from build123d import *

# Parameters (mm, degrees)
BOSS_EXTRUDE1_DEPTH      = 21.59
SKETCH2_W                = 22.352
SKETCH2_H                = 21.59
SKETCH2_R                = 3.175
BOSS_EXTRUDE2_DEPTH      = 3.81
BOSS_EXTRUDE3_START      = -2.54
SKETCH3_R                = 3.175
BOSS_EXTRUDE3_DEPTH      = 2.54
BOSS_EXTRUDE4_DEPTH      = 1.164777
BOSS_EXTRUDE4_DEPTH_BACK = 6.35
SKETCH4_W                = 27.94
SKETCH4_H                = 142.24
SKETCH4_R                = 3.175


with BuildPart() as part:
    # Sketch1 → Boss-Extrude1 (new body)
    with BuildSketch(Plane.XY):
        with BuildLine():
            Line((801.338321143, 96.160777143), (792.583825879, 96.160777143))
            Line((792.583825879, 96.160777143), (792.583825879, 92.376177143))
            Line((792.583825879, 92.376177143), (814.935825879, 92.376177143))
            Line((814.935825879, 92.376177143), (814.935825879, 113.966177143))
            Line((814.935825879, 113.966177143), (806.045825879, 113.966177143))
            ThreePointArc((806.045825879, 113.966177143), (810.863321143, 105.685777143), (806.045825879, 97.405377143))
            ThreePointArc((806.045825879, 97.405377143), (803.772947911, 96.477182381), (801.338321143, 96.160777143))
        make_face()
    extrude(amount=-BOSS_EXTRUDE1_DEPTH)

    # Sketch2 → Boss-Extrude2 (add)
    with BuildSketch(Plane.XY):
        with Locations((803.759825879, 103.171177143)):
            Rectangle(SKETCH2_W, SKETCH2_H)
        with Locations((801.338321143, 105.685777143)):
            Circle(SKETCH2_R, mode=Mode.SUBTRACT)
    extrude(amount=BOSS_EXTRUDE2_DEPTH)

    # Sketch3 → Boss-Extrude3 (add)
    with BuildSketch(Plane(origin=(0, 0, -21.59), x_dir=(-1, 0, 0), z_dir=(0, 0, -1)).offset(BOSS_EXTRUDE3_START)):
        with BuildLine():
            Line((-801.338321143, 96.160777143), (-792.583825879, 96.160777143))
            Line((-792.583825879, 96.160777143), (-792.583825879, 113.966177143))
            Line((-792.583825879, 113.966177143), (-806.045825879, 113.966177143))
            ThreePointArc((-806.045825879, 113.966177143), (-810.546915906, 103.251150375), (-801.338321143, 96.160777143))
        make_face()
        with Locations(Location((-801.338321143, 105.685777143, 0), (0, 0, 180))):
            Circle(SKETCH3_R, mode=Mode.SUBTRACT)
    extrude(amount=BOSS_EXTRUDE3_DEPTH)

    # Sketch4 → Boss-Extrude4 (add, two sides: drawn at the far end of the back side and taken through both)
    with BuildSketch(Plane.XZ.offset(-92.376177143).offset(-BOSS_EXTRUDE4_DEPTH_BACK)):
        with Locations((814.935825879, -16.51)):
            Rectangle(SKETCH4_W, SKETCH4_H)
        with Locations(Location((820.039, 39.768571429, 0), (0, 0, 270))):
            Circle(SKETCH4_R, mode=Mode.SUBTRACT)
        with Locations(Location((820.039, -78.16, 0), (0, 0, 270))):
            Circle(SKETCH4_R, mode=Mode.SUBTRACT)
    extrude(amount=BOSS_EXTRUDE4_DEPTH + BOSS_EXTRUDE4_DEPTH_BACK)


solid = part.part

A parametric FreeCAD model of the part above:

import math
import FreeCAD as App
import Part
import Sketcher

V = App.Vector
Q = App.Units.Quantity


def add_polygon(sketch, points):
    """Adds a closed chain of lines whose ends are joined by coincident constraints."""
    first, n = sketch.GeometryCount, len(points)
    for a, b in zip(points, points[1:] + points[:1]):
        sketch.addGeometry(Part.LineSegment(App.Vector(*a, 0), App.Vector(*b, 0)), False)
    for i in range(n):
        sketch.addConstraint(Sketcher.Constraint("Coincident", first + i, 2, first + (i + 1) % n, 1))

doc = App.newDocument("Part")
body = doc.addObject("PartDesign::Body", "Body")

# Sketch on XY plane
sketch1 = body.newObject("Sketcher::SketchObject", "Sketch")
sketch1.AttachmentSupport = (doc.getObject("XY_Plane"), [""])
sketch1.MapMode = "FlatFace"
sketch1.addGeometry([
    Part.LineSegment(V(801.338321, 96.160777, 0), V(792.583826, 96.160777, 0)),  # 0
    Part.LineSegment(V(792.583826, 96.160777, 0), V(792.583826, 92.376177, 0)),  # 1
    Part.LineSegment(V(792.583826, 92.376177, 0), V(814.935826, 92.376177, 0)),  # 2
    Part.LineSegment(V(814.935826, 92.376177, 0), V(814.935826, 113.966177, 0)),  # 3
    Part.LineSegment(V(814.935826, 113.966177, 0), V(806.045826, 113.966177, 0)),  # 4
    Part.ArcOfCircle(Part.Circle(V(801.338321, 105.685777, 0), V(0, 0, 1), 9.525), math.radians(-60.381261), math.radians(60.381261)),  # 5
    Part.ArcOfCircle(Part.Circle(V(801.338321, 105.685777, 0), V(0, 0, 1), 9.525), math.radians(-90), math.radians(-60.381261)),  # 6
], False)
sketch1.addConstraint([
    Sketcher.Constraint("Coincident", 0, 2, 1, 1),
    Sketcher.Constraint("Coincident", 1, 2, 2, 1),
    Sketcher.Constraint("Coincident", 2, 2, 3, 1),
    Sketcher.Constraint("Coincident", 3, 2, 4, 1),
    Sketcher.Constraint("Coincident", 4, 2, 5, 2),
    Sketcher.Constraint("Tangent", 5, 1, 6, 2),
    Sketcher.Constraint("Tangent", 6, 1, 0, 1),
    Sketcher.Constraint("Horizontal", 0),
    Sketcher.Constraint("Vertical", 1),
    Sketcher.Constraint("Horizontal", 2),
    Sketcher.Constraint("Vertical", 3),
    Sketcher.Constraint("Horizontal", 4),
    Sketcher.Constraint("Equal", 5, 6),
    Sketcher.Constraint("Vertical", 4, 2, 5, 1),
    Sketcher.Constraint("Radius", 5, Q("0.375 in")),
    Sketcher.Constraint("DistanceX", 2, 1, 2, 2, Q("0.88 in")),
    Sketcher.Constraint("DistanceX", 4, 2, 4, 1, Q("0.35 in")),
    Sketcher.Constraint("DistanceY", 3, 1, 3, 2, Q("0.85 in")),
    Sketcher.Constraint("DistanceY", 1, 2, 1, 1, Q("0.149 in")),
    Sketcher.Constraint("DistanceX", -1, 1, 5, 3, Q("801.338321 mm")),
    Sketcher.Constraint("DistanceY", -1, 1, 5, 3, Q("105.685777 mm")),
])
pad1 = body.newObject("PartDesign::Pad", "Pad")
pad1.Profile = sketch1
pad1.Length = Q("0.85 in")
pad1.Reversed = True

# Sketch on XY plane
sketch2 = body.newObject("Sketcher::SketchObject", "Sketch001")
sketch2.AttachmentSupport = (doc.getObject("XY_Plane"), [""])
sketch2.MapMode = "FlatFace"
add_polygon(sketch2, [(792.583826, 113.966177), (792.583826, 92.376177), (814.935826, 92.376177), (814.935826, 113.966177)])  # lines 0-3
sketch2.addGeometry(Part.Circle(V(801.338321, 105.685777, 0), V(0, 0, 1), 3.175), False)  # 4
sketch2.addConstraint([
    Sketcher.Constraint("Vertical", 0),
    Sketcher.Constraint("Horizontal", 1),
    Sketcher.Constraint("Vertical", 2),
    Sketcher.Constraint("Horizontal", 3),
    Sketcher.Constraint("Diameter", 4, Q("0.25 in")),
    Sketcher.Constraint("DistanceX", 1, 1, 1, 2, Q("0.88 in")),
    Sketcher.Constraint("DistanceY", 0, 2, 0, 1, Q("0.85 in")),
    Sketcher.Constraint("DistanceY", 0, 2, 4, 3, Q("0.524 in")),
    Sketcher.Constraint("DistanceX", -1, 1, 4, 3, Q("801.338321 mm")),
    Sketcher.Constraint("DistanceY", -1, 1, 4, 3, Q("105.685777 mm")),
    Sketcher.Constraint("DistanceX", -1, 1, 0, 2, Q("792.583826 mm")),
])
pad2 = body.newObject("PartDesign::Pad", "Pad001")
pad2.Profile = sketch2
pad2.Length = Q("0.15 in")

# Sketch on XY plane
sketch3 = body.newObject("Sketcher::SketchObject", "Sketch002")
sketch3.AttachmentSupport = (doc.getObject("XY_Plane"), [""])
sketch3.MapMode = "FlatFace"
sketch3.AttachmentOffset = App.Placement(V(0, 0, -0.75 * 25.4), App.Rotation())
sketch3.addGeometry([
    Part.LineSegment(V(801.338321, 96.160777, 0), V(792.583826, 96.160777, 0)),  # 0
    Part.LineSegment(V(792.583826, 96.160777, 0), V(792.583826, 113.966177, 0)),  # 1
    Part.LineSegment(V(792.583826, 113.966177, 0), V(806.045826, 113.966177, 0)),  # 2
    Part.ArcOfCircle(Part.Circle(V(801.338321, 105.685777, 0), V(0, 0, 1), 9.525), math.radians(-90), math.radians(60.381261)),  # 3
    Part.Circle(V(801.338321, 105.685777, 0), V(0, 0, 1), 3.175),  # 4
], False)
sketch3.addConstraint([
    Sketcher.Constraint("Coincident", 0, 2, 1, 1),
    Sketcher.Constraint("Coincident", 1, 2, 2, 1),
    Sketcher.Constraint("Coincident", 2, 2, 3, 2),
    Sketcher.Constraint("Tangent", 3, 1, 0, 1),
    Sketcher.Constraint("Horizontal", 0),
    Sketcher.Constraint("Vertical", 1),
    Sketcher.Constraint("Horizontal", 2),
    Sketcher.Constraint("Coincident", 4, 3, 3, 3),
    Sketcher.Constraint("Diameter", 4, Q("0.25 in")),
    Sketcher.Constraint("Radius", 3, Q("0.375 in")),
    Sketcher.Constraint("DistanceX", 2, 1, 2, 2, Q("0.53 in")),
    Sketcher.Constraint("DistanceY", 1, 1, 1, 2, Q("0.701 in")),
    Sketcher.Constraint("DistanceX", -1, 1, 3, 3, Q("801.338321 mm")),
    Sketcher.Constraint("DistanceY", -1, 1, 3, 3, Q("105.685777 mm")),
])
pad3 = body.newObject("PartDesign::Pad", "Pad002")
pad3.Profile = sketch3
pad3.Length = Q("0.1 in")
pad3.Reversed = True

# Sketch on XZ plane
sketch4 = body.newObject("Sketcher::SketchObject", "Sketch003")
sketch4.AttachmentSupport = (doc.getObject("XZ_Plane"), [""])
sketch4.MapMode = "FlatFace"
sketch4.AttachmentOffset = App.Placement(V(0, 0, -92.376177), App.Rotation())
add_polygon(sketch4, [(800.965826, 54.61), (800.965826, -87.63), (828.905826, -87.63), (828.905826, 54.61)])  # lines 0-3
sketch4.addGeometry(Part.Circle(V(820.039, -78.16, 0), V(0, 0, 1), 3.175), False)  # 4
sketch4.addGeometry(Part.Circle(V(820.039, 39.768571, 0), V(0, 0, 1), 3.175), False)  # 5
sketch4.addConstraint([
    Sketcher.Constraint("Vertical", 0),
    Sketcher.Constraint("Horizontal", 1),
    Sketcher.Constraint("Vertical", 2),
    Sketcher.Constraint("Horizontal", 3),
    Sketcher.Constraint("Equal", 4, 5),
    Sketcher.Constraint("Vertical", 4, 3, 5, 3),
    Sketcher.Constraint("Diameter", 4, Q("0.25 in")),
    Sketcher.Constraint("DistanceX", 1, 1, 1, 2, Q("1.1 in")),
    Sketcher.Constraint("DistanceY", 0, 2, 0, 1, Q("5.6 in")),
    Sketcher.Constraint("DistanceY", 0, 2, -1, 1, Q("3.45 in")),
    Sketcher.Constraint("DistanceX", -1, 1, 4, 3, Q("32.285 in")),
    Sketcher.Constraint("DistanceY", 4, 3, -1, 1, Q("78.16 mm")),
    Sketcher.Constraint("DistanceY", -1, 1, 5, 3, Q("39.768571 mm")),
    Sketcher.Constraint("DistanceX", -1, 1, 0, 2, Q("800.965826 mm")),
])
pad4 = body.newObject("PartDesign::Pad", "Pad003")
pad4.Profile = sketch4
pad4.Type = "TwoLengths"
pad4.Length = 1.164777
pad4.Length2 = Q("0.25 in")

doc.recompute()
